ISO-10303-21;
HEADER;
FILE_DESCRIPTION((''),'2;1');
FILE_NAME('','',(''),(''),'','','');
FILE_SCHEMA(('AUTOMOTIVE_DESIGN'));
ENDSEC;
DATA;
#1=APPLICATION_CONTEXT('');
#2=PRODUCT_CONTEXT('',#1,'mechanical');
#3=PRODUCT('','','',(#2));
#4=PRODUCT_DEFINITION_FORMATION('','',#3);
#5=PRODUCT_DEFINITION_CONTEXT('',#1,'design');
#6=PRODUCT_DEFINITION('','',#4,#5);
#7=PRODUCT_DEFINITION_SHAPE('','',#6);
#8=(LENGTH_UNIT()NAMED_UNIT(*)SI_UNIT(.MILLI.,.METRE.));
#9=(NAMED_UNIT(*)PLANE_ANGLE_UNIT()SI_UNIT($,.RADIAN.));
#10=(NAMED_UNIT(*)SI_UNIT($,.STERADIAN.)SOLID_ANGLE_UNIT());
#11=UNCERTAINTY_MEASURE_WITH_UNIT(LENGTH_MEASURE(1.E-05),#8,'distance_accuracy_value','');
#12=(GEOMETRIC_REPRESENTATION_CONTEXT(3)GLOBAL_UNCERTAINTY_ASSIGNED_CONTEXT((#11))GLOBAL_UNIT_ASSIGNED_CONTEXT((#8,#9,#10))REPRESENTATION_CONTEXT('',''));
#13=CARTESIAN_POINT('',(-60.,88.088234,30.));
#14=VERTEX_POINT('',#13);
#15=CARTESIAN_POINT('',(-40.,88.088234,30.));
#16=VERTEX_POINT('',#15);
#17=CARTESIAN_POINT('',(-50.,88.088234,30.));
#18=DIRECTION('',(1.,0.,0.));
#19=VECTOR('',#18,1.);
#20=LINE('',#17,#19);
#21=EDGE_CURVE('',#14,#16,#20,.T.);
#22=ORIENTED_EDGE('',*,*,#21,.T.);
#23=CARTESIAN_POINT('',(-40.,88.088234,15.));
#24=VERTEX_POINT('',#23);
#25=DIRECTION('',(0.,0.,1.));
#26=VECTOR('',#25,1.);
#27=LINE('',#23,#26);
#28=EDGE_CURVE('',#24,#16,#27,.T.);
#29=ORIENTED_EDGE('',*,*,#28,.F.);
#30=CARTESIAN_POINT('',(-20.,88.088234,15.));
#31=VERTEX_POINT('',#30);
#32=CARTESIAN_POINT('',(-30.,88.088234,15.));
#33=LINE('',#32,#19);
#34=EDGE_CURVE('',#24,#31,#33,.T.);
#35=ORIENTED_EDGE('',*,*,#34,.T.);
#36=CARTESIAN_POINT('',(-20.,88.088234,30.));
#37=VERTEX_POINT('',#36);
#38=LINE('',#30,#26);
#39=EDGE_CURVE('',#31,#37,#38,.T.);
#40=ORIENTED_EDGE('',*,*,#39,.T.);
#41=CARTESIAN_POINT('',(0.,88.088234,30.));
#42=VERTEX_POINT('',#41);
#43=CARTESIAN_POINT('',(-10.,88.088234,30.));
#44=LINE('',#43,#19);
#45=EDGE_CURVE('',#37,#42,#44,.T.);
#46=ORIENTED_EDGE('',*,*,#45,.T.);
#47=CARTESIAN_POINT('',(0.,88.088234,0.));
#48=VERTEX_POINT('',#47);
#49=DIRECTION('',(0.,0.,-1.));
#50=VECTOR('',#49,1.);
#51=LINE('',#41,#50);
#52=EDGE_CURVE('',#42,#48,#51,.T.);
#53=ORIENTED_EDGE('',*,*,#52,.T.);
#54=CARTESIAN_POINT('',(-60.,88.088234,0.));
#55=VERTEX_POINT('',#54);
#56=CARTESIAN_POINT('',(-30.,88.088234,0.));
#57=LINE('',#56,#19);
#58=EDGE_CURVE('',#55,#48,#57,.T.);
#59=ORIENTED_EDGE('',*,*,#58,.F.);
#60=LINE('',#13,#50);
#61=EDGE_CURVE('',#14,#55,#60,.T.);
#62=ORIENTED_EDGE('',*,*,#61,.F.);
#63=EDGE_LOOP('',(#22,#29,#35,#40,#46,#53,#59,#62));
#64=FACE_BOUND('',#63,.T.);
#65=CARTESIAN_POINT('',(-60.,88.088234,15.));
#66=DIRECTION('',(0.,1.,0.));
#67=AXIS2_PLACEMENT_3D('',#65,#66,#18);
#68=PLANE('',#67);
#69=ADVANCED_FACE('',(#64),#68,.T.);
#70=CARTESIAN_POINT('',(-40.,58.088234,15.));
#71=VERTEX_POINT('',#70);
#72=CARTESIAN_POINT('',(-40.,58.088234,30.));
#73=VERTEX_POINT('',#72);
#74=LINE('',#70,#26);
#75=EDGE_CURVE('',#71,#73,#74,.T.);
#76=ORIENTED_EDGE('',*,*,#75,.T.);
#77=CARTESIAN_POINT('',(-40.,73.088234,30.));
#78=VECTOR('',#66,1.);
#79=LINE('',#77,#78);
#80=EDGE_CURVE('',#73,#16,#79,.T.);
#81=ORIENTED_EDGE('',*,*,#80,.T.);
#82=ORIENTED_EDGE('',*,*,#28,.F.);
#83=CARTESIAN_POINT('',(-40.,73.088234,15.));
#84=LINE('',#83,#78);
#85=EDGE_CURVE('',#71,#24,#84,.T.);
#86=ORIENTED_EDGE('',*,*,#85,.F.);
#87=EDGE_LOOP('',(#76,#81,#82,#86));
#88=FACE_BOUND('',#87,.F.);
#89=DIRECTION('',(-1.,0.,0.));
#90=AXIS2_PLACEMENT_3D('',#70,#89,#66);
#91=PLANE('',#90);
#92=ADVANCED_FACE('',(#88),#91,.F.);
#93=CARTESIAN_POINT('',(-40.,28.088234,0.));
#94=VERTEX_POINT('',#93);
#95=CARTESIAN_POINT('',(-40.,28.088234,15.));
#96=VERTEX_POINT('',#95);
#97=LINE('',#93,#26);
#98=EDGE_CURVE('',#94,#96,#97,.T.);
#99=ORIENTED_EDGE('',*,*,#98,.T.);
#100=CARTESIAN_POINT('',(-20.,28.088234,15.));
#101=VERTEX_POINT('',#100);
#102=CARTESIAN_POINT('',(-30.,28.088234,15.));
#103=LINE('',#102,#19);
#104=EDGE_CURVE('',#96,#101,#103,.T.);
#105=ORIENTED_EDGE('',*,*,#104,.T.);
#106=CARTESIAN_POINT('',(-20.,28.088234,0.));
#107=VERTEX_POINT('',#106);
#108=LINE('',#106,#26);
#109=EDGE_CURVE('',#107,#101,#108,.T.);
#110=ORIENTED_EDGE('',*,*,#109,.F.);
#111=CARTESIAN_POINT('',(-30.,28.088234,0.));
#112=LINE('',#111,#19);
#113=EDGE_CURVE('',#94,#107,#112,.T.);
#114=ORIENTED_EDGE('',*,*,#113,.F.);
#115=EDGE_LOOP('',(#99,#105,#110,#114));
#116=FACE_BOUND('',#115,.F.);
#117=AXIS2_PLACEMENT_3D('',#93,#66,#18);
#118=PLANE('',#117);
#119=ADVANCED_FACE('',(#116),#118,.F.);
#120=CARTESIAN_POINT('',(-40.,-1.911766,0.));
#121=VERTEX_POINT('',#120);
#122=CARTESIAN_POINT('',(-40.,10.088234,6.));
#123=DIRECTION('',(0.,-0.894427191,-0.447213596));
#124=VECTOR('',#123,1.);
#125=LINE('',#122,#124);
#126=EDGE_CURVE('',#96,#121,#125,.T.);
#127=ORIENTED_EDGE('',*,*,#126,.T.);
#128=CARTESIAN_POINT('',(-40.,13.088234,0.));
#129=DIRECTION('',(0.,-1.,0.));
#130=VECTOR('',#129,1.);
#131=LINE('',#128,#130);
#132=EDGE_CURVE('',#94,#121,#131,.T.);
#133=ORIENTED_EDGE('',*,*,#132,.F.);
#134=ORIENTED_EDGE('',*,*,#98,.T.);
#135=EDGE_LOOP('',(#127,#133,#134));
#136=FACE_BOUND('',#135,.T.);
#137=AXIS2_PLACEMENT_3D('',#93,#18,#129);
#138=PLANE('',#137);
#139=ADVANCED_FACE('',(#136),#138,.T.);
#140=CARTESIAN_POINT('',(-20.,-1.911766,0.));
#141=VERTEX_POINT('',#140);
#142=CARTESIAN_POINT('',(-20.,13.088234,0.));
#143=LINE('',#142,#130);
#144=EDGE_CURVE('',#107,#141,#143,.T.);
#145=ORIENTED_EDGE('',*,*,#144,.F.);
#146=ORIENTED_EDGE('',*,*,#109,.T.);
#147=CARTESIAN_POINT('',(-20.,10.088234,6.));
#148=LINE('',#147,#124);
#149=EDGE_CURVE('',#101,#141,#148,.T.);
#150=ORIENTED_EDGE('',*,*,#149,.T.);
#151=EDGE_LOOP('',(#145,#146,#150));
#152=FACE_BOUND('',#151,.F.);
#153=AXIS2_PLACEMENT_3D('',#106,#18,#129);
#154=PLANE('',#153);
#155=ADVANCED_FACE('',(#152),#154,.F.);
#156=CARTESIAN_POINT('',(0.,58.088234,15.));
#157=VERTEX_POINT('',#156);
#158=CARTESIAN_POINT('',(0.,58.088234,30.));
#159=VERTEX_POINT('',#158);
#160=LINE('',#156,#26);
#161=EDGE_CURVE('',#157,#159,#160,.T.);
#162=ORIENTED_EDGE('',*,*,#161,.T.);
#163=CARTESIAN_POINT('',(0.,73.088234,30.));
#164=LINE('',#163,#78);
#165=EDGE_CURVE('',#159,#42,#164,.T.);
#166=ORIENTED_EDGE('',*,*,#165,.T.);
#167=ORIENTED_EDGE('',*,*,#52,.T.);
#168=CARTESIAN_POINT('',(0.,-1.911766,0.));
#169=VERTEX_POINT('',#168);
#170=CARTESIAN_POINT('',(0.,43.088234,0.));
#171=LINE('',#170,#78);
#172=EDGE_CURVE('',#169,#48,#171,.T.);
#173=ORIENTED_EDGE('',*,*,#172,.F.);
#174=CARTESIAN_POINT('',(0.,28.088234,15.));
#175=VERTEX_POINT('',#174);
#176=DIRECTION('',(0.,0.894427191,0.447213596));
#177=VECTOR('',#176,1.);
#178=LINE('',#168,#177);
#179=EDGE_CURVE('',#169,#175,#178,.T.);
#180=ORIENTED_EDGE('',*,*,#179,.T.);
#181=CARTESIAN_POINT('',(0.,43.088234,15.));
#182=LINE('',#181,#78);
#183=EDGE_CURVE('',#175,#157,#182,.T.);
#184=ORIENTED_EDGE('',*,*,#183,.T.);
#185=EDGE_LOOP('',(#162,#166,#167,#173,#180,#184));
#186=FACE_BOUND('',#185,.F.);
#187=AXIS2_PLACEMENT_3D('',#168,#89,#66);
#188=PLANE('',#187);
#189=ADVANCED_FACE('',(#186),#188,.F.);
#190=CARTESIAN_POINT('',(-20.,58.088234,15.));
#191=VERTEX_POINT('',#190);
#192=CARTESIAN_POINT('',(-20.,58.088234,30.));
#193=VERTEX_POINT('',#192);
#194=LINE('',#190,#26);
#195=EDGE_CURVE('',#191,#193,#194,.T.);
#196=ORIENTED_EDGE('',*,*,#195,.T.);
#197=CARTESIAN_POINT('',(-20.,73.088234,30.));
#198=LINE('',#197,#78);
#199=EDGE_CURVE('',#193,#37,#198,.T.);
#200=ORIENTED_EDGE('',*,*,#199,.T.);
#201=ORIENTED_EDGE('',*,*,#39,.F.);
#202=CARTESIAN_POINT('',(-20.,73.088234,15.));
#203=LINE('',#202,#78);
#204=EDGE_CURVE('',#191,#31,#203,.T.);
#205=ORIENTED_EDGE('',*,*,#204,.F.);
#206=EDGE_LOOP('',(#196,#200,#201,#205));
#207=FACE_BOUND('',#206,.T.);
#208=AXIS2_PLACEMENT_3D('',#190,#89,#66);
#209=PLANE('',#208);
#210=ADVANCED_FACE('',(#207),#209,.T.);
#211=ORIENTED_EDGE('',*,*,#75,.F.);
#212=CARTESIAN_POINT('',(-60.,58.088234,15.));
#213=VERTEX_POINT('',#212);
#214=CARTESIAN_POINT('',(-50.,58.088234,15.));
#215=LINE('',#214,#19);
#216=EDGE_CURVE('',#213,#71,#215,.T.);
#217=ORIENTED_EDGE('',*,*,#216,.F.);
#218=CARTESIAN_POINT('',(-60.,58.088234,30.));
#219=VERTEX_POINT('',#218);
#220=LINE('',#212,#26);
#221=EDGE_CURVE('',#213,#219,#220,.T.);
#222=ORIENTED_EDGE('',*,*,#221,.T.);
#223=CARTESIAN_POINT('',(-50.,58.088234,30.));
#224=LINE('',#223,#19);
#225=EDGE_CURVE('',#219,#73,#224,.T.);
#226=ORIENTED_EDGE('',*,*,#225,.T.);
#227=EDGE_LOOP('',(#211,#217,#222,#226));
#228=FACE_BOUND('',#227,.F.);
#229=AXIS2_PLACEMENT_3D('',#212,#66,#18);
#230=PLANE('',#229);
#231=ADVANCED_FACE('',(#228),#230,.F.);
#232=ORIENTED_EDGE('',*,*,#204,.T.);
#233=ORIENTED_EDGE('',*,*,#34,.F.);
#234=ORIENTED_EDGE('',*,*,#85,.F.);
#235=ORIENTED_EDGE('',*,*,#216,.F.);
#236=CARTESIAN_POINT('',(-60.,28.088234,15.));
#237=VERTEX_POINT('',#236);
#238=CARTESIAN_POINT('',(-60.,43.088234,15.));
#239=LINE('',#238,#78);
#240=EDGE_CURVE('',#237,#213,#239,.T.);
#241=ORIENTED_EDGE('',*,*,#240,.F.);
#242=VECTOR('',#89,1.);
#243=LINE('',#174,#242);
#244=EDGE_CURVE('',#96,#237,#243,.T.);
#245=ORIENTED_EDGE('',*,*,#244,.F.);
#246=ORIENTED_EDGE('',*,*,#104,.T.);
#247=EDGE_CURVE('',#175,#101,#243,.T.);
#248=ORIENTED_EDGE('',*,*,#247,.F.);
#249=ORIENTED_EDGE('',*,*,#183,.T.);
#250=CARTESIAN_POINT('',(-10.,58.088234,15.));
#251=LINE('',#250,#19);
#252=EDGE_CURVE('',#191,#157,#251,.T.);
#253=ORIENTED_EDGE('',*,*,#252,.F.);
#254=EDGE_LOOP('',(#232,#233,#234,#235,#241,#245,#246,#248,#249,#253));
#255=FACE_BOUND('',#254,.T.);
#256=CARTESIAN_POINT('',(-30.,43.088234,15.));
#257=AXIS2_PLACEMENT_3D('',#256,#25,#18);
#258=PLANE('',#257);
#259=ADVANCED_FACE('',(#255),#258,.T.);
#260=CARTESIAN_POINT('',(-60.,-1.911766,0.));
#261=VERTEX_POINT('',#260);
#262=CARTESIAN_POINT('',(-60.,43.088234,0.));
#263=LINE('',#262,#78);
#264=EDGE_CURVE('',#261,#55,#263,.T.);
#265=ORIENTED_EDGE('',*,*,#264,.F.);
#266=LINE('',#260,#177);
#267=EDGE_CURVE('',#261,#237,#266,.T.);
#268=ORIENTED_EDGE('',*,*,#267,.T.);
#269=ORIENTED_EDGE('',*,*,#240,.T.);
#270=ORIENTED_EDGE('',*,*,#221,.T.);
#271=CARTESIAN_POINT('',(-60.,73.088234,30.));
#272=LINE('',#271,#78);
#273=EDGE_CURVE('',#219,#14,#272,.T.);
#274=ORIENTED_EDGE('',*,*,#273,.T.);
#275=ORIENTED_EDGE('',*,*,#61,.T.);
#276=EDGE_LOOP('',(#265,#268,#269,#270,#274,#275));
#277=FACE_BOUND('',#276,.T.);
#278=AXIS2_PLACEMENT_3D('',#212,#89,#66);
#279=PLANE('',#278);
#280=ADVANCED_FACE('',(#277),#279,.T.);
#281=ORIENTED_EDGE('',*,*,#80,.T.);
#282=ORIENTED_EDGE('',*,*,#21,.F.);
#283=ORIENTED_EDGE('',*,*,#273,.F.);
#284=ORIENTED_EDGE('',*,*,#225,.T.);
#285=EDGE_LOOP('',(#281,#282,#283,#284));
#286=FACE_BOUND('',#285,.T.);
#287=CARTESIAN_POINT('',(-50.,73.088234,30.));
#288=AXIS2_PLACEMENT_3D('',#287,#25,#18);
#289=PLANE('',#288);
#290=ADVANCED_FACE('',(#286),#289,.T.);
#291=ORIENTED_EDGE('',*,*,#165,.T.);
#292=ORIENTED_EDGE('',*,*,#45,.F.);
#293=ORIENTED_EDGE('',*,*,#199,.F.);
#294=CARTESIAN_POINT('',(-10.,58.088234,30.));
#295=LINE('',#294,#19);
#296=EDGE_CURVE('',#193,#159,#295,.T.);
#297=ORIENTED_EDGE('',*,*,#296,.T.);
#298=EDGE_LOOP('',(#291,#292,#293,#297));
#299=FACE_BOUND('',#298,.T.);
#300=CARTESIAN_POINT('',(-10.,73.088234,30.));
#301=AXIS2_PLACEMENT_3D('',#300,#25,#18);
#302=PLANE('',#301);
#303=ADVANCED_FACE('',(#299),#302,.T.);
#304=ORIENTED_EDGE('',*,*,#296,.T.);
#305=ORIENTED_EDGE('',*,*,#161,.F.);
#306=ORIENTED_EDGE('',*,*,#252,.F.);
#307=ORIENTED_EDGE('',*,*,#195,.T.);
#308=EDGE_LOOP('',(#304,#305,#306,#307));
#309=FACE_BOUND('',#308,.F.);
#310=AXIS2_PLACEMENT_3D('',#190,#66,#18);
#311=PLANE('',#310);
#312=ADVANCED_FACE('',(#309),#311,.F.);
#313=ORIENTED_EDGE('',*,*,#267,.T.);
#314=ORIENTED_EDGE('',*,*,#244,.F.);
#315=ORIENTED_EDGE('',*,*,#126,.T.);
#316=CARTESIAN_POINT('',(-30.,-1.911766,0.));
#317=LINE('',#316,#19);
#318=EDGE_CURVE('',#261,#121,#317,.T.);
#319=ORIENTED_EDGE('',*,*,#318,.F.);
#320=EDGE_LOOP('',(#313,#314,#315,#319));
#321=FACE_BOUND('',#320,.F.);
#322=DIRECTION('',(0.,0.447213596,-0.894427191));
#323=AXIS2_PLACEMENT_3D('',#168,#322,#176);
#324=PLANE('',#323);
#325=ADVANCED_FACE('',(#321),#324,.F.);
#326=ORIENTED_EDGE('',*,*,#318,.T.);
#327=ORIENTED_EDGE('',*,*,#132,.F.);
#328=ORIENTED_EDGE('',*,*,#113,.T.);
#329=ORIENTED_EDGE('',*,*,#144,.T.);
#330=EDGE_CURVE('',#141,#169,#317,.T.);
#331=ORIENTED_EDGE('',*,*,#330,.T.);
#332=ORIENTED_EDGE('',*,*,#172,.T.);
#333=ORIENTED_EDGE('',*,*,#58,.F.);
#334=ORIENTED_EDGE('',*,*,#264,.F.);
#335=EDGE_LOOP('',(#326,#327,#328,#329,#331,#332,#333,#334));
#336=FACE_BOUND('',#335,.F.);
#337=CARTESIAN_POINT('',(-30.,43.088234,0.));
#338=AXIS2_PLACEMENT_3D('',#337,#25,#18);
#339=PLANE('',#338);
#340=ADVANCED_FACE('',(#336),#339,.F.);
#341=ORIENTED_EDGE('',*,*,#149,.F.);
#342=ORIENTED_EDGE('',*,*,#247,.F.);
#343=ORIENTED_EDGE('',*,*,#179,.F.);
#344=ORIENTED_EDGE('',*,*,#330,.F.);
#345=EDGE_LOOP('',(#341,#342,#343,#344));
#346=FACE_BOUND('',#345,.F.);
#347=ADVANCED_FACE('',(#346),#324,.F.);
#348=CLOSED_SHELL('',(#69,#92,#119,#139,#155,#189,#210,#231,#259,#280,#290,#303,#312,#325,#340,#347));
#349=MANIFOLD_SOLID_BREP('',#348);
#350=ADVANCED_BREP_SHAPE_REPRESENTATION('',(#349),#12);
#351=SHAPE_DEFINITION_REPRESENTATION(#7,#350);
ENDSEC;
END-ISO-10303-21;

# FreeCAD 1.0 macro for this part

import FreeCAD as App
import Part
import Sketcher
Q = App.Units.Quantity

doc = App.newDocument("Part")
body = doc.addObject("PartDesign::Body", "Body")

# Sketch on XY plane
sketch1 = body.newObject("Sketcher::SketchObject", "Sketch")
sketch1.AttachmentSupport = (doc.getObject("XY_Plane"), [""])
sketch1.MapMode = "FlatFace"
sketch1.addGeometry([
    Part.LineSegment(App.Vector(-60, 88, 0), App.Vector(-60, -2, 0)),
    Part.LineSegment(App.Vector(-60, -2, 0), App.Vector(0, -2, 0)),
    Part.LineSegment(App.Vector(0, -2, 0), App.Vector(0, 88, 0)),
    Part.LineSegment(App.Vector(0, 88, 0), App.Vector(-60, 88, 0)),
], False)
sketch1.addConstraint([
    Sketcher.Constraint("Coincident", 0, 2, 1, 1),
    Sketcher.Constraint("Coincident", 1, 2, 2, 1),
    Sketcher.Constraint("Coincident", 2, 2, 3, 1),
    Sketcher.Constraint("Coincident", 3, 2, 0, 1),
    Sketcher.Constraint("Vertical", 0),
    Sketcher.Constraint("Horizontal", 1),
    Sketcher.Constraint("Vertical", 2),
    Sketcher.Constraint("Horizontal", 3),
    Sketcher.Constraint("PointOnObject", 1, 2, -2),
    Sketcher.Constraint("DistanceX", 1, 1, 1, 2, Q("60 mm")),
    Sketcher.Constraint("DistanceY", 0, 2, 0, 1, Q("90 mm")),
    Sketcher.Constraint("DistanceY", 0, 2, -1, 1, Q("1.911766 mm")),
])
pad1 = body.newObject("PartDesign::Pad", "Pad")
pad1.Profile = sketch1
pad1.Length = 15

# Sketch on XY plane
sketch2 = body.newObject("Sketcher::SketchObject", "Sketch001")
sketch2.AttachmentSupport = (doc.getObject("XY_Plane"), [""])
sketch2.MapMode = "FlatFace"
sketch2.AttachmentOffset = App.Placement(App.Vector(0, 0, 15), App.Rotation())
sketch2.addGeometry([
    Part.LineSegment(App.Vector(-60, 88, 0), App.Vector(-60, 58, 0)),  # 0
    Part.LineSegment(App.Vector(-60, 58, 0), App.Vector(-40, 58, 0)),  # 1
    Part.LineSegment(App.Vector(-40, 58, 0), App.Vector(-40, 88, 0)),  # 2
    Part.LineSegment(App.Vector(-40, 88, 0), App.Vector(-60, 88, 0)),  # 3
    Part.LineSegment(App.Vector(-20, 88, 0), App.Vector(-20, 58, 0)),  # 4
    Part.LineSegment(App.Vector(-20, 58, 0), App.Vector(0, 58, 0)),  # 5
    Part.LineSegment(App.Vector(0, 58, 0), App.Vector(0, 88, 0)),  # 6
    Part.LineSegment(App.Vector(0, 88, 0), App.Vector(-20, 88, 0)),  # 7
], False)
sketch2.addConstraint([
    Sketcher.Constraint("Coincident", 0, 2, 1, 1),
    Sketcher.Constraint("Coincident", 1, 2, 2, 1),
    Sketcher.Constraint("Coincident", 2, 2, 3, 1),
    Sketcher.Constraint("Coincident", 3, 2, 0, 1),
    Sketcher.Constraint("Coincident", 4, 2, 5, 1),
    Sketcher.Constraint("Coincident", 5, 2, 6, 1),
    Sketcher.Constraint("Coincident", 6, 2, 7, 1),
    Sketcher.Constraint("Coincident", 7, 2, 4, 1),
    Sketcher.Constraint("Vertical", 0),
    Sketcher.Constraint("Horizontal", 1),
    Sketcher.Constraint("Vertical", 2),
    Sketcher.Constraint("Horizontal", 3),
    Sketcher.Constraint("Vertical", 4),
    Sketcher.Constraint("Horizontal", 5),
    Sketcher.Constraint("Vertical", 6),
    Sketcher.Constraint("Horizontal", 7),
    Sketcher.Constraint("PointOnObject", 5, 2, -2),
    Sketcher.Constraint("Horizontal", 1, 2, 4, 2),
    Sketcher.Constraint("Horizontal", 3, 2, 6, 2),
    Sketcher.Constraint("Equal", 3, 5),
    Sketcher.Constraint("DistanceX", 1, 1, 1, 2, Q("20 mm")),
    Sketcher.Constraint("DistanceY", 0, 2, 0, 1, Q("30 mm")),
    Sketcher.Constraint("DistanceX", 0, 2, -1, 1, Q("60 mm")),
    Sketcher.Constraint("DistanceY", -1, 1, 0, 2, Q("58.088234 mm")),
])
pad2 = body.newObject("PartDesign::Pad", "Pad001")
pad2.Profile = sketch2
pad2.Length = 15

# Sketch on YZ plane
sketch3 = body.newObject("Sketcher::SketchObject", "Sketch002")
sketch3.AttachmentSupport = (doc.getObject("YZ_Plane"), [""])
sketch3.MapMode = "FlatFace"
sketch3.addGeometry([
    Part.LineSegment(App.Vector(-2, 15, 0), App.Vector(-2, 0, 0)),
    Part.LineSegment(App.Vector(-2, 0, 0), App.Vector(28, 15, 0)),
    Part.LineSegment(App.Vector(28, 15, 0), App.Vector(-2, 15, 0)),
], False)
sketch3.addConstraint([
    Sketcher.Constraint("Coincident", 0, 2, 1, 1),
    Sketcher.Constraint("Coincident", 1, 2, 2, 1),
    Sketcher.Constraint("Coincident", 2, 2, 0, 1),
    Sketcher.Constraint("Vertical", 0),
    Sketcher.Constraint("Horizontal", 2),
    Sketcher.Constraint("PointOnObject", 0, 2, -1),
    Sketcher.Constraint("DistanceX", 2, 2, 2, 1, Q("30 mm")),
    Sketcher.Constraint("DistanceY", 0, 2, 0, 1, Q("15 mm")),
    Sketcher.Constraint("DistanceX", 0, 2, -1, 1, Q("1.911766 mm")),
])
pocket1 = body.newObject("PartDesign::Pocket", "Pocket")
pocket1.Profile = sketch3
pocket1.Length = 60

# Sketch on XY plane
sketch4 = body.newObject("Sketcher::SketchObject", "Sketch003")
sketch4.AttachmentSupport = (doc.getObject("XY_Plane"), [""])
sketch4.MapMode = "FlatFace"
sketch4.addGeometry([
    Part.LineSegment(App.Vector(-40, -2, 0), App.Vector(-40, 28, 0)),
    Part.LineSegment(App.Vector(-40, 28, 0), App.Vector(-20, 28, 0)),
    Part.LineSegment(App.Vector(-20, 28, 0), App.Vector(-20, -2, 0)),
    Part.LineSegment(App.Vector(-20, -2, 0), App.Vector(-40, -2, 0)),
], False)
sketch4.addConstraint([
    Sketcher.Constraint("Coincident", 0, 2, 1, 1),
    Sketcher.Constraint("Coincident", 1, 2, 2, 1),
    Sketcher.Constraint("Coincident", 2, 2, 3, 1),
    Sketcher.Constraint("Coincident", 3, 2, 0, 1),
    Sketcher.Constraint("Vertical", 0),
    Sketcher.Constraint("Horizontal", 1),
    Sketcher.Constraint("Vertical", 2),
    Sketcher.Constraint("Horizontal", 3),
    Sketcher.Constraint("DistanceX", 1, 1, 1, 2, Q("20 mm")),
    Sketcher.Constraint("DistanceY", 0, 1, 0, 2, Q("30 mm")),
    Sketcher.Constraint("DistanceX", 0, 2, -1, 1, Q("40 mm")),
    Sketcher.Constraint("DistanceY", -1, 1, 0, 2, Q("28.088234 mm")),
])
pocket2 = body.newObject("PartDesign::Pocket", "Pocket001")
pocket2.Profile = sketch4
pocket2.Length = 15
pocket2.Reversed = True

doc.recompute()
